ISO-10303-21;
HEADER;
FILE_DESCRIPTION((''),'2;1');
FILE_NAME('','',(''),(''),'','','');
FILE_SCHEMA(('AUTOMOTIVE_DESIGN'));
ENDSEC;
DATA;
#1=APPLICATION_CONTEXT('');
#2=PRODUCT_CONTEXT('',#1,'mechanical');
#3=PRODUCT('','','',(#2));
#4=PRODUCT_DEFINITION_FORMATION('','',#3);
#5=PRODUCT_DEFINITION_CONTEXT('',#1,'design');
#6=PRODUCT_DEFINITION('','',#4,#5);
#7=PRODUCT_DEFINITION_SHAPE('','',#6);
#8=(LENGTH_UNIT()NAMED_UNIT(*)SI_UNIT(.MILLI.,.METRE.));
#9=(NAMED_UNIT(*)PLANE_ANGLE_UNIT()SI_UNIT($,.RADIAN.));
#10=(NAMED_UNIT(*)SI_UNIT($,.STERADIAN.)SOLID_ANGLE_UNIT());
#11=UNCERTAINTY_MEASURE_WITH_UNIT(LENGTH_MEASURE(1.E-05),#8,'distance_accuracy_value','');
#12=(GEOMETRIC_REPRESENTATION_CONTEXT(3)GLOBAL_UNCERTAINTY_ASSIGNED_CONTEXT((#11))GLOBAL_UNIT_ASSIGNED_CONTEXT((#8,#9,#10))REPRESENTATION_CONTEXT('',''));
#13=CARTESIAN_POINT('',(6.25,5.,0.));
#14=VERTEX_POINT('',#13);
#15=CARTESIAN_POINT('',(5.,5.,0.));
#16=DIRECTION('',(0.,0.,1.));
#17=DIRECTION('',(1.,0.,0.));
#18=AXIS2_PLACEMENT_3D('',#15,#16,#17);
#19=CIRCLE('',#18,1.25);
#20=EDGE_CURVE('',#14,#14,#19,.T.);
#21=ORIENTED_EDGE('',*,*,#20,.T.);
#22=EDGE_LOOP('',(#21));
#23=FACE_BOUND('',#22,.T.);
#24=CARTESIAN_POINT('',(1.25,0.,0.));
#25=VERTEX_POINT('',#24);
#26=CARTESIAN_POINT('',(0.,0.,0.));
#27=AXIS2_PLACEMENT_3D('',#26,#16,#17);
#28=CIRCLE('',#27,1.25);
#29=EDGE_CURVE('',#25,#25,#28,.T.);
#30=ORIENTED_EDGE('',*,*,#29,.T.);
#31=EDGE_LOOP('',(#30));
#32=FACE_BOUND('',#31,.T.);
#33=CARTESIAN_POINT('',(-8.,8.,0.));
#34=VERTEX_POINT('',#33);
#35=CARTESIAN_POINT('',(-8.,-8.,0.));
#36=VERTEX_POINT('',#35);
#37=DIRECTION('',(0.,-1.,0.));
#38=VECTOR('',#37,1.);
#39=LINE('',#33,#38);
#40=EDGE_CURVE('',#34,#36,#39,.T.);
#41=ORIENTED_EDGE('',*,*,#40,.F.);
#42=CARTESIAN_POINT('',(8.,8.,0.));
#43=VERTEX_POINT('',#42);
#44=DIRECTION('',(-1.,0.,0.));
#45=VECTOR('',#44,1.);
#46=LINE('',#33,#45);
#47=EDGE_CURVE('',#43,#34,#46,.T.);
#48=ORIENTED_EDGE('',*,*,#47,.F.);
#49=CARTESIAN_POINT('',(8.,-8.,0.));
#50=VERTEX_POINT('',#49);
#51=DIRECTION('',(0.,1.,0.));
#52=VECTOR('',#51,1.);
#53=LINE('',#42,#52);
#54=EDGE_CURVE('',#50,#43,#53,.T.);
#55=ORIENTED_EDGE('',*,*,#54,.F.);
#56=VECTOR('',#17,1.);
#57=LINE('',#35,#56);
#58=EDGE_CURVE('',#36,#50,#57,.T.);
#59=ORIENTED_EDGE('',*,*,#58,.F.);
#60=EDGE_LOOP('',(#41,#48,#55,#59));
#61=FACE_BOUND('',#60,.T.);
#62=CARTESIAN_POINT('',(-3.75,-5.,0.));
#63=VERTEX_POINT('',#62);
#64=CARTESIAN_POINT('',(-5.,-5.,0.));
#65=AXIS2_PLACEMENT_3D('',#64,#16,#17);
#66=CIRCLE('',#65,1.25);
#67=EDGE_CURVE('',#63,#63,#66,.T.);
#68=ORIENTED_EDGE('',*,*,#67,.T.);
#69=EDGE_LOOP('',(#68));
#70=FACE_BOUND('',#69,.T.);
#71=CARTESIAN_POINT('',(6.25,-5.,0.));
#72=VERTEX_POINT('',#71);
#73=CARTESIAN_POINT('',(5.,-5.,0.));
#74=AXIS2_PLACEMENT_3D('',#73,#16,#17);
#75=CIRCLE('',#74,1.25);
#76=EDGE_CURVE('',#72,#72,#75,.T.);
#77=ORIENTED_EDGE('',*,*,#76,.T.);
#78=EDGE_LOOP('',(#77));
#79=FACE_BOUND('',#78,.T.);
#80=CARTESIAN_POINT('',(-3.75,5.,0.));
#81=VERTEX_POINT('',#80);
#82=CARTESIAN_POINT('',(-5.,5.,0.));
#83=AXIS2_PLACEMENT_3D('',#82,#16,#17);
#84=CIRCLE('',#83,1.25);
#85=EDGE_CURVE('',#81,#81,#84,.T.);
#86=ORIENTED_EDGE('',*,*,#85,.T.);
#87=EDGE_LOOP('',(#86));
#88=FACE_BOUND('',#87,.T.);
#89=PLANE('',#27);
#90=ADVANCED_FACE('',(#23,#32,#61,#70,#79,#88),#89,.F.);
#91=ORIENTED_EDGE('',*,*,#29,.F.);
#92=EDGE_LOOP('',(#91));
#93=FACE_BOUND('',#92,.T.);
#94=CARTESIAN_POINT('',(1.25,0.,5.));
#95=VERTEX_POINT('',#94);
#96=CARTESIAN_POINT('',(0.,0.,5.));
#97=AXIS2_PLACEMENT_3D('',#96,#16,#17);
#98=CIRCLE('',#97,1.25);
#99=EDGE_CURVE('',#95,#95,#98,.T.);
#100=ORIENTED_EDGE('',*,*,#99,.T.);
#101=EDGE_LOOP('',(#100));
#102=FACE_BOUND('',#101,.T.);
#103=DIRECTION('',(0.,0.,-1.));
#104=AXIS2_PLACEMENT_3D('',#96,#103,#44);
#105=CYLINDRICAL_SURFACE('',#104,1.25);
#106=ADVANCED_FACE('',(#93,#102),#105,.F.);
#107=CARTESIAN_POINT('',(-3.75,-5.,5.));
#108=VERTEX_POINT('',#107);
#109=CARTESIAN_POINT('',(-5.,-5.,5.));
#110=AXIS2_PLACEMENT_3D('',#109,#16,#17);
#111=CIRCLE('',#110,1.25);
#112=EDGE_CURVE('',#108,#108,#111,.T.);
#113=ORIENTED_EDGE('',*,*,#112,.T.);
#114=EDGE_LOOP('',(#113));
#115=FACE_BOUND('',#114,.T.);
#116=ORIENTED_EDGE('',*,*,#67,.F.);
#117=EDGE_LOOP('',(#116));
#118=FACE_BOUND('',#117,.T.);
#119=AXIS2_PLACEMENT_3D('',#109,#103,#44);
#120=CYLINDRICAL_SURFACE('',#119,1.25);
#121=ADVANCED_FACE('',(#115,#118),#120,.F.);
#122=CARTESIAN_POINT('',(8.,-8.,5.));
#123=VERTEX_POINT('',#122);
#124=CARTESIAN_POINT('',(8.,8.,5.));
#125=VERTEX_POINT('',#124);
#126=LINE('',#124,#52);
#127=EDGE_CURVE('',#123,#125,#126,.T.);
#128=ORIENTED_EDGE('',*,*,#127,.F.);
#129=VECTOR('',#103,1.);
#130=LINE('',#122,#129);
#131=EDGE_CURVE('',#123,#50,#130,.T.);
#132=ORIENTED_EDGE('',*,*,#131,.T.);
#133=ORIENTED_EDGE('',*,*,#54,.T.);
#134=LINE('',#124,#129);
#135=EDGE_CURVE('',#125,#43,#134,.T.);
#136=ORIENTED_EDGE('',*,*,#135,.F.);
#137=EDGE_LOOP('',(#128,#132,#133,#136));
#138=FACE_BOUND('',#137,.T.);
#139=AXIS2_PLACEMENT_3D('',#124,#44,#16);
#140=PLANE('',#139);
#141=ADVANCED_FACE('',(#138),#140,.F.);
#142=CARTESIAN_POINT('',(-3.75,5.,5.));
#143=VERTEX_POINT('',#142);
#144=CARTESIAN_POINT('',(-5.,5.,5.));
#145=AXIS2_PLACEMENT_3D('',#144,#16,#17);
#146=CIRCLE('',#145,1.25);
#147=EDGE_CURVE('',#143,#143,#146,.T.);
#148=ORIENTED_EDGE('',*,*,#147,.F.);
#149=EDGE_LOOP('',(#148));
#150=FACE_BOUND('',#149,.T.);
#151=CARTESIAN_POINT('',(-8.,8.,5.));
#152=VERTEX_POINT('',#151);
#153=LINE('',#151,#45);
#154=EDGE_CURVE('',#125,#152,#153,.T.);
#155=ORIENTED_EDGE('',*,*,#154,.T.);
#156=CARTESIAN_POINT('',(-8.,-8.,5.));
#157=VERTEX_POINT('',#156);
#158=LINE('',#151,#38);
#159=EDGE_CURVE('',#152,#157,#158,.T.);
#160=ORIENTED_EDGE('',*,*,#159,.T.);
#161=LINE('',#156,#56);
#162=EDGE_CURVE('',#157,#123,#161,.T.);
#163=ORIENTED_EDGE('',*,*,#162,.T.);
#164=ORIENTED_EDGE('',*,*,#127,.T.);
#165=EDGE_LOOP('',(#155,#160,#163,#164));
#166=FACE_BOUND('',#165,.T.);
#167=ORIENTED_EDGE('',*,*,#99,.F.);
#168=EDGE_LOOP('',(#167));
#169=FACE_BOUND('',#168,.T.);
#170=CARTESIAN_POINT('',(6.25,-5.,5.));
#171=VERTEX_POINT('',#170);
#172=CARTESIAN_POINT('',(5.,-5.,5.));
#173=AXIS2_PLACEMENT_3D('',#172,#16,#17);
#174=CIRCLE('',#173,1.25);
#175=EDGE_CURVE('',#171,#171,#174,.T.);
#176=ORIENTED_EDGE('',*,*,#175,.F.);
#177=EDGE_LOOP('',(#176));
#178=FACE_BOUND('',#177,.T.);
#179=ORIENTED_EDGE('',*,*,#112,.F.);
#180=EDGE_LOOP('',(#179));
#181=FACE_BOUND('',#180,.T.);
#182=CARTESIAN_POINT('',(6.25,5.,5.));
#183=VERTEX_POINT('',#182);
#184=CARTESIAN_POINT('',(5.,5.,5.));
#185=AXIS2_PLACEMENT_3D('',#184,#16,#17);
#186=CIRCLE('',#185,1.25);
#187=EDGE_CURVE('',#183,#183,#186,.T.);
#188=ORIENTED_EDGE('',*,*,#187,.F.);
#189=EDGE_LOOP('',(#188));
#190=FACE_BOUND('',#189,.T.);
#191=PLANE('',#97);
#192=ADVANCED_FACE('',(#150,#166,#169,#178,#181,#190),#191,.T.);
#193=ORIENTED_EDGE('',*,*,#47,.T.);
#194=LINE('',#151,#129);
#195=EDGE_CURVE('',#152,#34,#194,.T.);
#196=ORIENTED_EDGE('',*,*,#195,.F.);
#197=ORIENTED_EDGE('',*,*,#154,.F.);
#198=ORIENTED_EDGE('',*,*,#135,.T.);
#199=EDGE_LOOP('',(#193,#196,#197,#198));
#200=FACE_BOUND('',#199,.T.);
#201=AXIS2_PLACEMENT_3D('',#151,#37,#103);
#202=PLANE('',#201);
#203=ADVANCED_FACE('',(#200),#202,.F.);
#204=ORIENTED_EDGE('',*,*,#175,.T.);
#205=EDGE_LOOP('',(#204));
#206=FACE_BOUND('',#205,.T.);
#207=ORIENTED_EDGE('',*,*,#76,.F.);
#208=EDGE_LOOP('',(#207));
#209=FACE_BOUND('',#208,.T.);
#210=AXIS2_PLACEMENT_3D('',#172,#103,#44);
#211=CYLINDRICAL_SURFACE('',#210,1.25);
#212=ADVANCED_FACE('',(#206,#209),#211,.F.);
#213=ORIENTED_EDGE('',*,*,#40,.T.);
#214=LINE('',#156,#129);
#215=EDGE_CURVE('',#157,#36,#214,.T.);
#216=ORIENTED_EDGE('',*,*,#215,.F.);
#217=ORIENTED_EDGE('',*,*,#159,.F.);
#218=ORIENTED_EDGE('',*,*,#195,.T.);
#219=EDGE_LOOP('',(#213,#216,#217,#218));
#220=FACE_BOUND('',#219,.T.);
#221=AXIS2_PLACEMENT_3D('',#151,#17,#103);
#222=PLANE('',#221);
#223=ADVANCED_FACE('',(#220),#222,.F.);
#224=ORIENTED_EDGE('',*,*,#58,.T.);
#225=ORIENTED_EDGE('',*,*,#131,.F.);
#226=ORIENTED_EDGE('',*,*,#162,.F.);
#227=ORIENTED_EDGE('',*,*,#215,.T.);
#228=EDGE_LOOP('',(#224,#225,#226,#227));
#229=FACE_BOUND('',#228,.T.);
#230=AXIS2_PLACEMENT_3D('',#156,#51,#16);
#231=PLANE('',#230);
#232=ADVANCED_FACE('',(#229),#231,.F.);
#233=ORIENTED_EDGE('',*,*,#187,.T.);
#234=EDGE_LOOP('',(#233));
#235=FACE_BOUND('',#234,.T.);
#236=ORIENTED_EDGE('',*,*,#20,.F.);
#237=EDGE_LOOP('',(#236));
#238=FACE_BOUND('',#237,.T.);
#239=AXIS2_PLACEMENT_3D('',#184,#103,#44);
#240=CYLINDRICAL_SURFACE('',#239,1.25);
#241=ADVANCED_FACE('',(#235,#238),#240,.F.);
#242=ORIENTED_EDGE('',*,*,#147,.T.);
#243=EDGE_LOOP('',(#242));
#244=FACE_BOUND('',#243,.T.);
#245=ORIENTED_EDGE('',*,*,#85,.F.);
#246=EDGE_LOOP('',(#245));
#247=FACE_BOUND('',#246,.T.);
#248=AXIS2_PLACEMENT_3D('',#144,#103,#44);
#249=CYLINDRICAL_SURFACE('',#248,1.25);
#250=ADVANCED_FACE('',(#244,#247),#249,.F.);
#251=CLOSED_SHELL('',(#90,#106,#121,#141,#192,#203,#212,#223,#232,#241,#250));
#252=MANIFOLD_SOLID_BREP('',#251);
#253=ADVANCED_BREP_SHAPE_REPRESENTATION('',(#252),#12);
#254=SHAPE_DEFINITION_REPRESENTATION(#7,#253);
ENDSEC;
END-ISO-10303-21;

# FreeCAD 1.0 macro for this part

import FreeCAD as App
import Part
import Sketcher
Q = App.Units.Quantity

doc = App.newDocument("Part")
body = doc.addObject("PartDesign::Body", "Body")

# Sketch on XY plane
sketch1 = body.newObject("Sketcher::SketchObject", "Sketch")
sketch1.AttachmentSupport = (doc.getObject("XY_Plane"), [""])
sketch1.MapMode = "FlatFace"
sketch1.addGeometry([
    Part.LineSegment(App.Vector(-8, 8, 0), App.Vector(-8, -8, 0)),  # 0
    Part.LineSegment(App.Vector(-8, -8, 0), App.Vector(8, -8, 0)),  # 1
    Part.LineSegment(App.Vector(8, -8, 0), App.Vector(8, 8, 0)),  # 2
    Part.LineSegment(App.Vector(8, 8, 0), App.Vector(-8, 8, 0)),  # 3
    Part.Circle(App.Vector(-5, -5, 0), App.Vector(0, 0, 1), 1.2),  # 4
    Part.Circle(App.Vector(5, -5, 0), App.Vector(0, 0, 1), 1.2),  # 5
    Part.Circle(App.Vector(-5, 5, 0), App.Vector(0, 0, 1), 1.2),  # 6
    Part.Circle(App.Vector(0, 0, 0), App.Vector(0, 0, 1), 1.2),  # 7
    Part.Circle(App.Vector(5, 5, 0), App.Vector(0, 0, 1), 1.2),  # 8
], False)
sketch1.addConstraint([
    Sketcher.Constraint("Coincident", 0, 2, 1, 1),
    Sketcher.Constraint("Coincident", 1, 2, 2, 1),
    Sketcher.Constraint("Coincident", 2, 2, 3, 1),
    Sketcher.Constraint("Coincident", 3, 2, 0, 1),
    Sketcher.Constraint("Vertical", 0),
    Sketcher.Constraint("Horizontal", 1),
    Sketcher.Constraint("Vertical", 2),
    Sketcher.Constraint("Horizontal", 3),
    Sketcher.Constraint("Coincident", 7, 3, -1, 1),
    Sketcher.Constraint("Equal", 4, 5),
    Sketcher.Constraint("Equal", 5, 6),
    Sketcher.Constraint("Equal", 6, 7),
    Sketcher.Constraint("Equal", 7, 8),
    Sketcher.Constraint("Symmetric", 5, 3, 6, 3, -1, 1),
    Sketcher.Constraint("Symmetric", 4, 3, 8, 3, -1, 1),
    Sketcher.Constraint("Symmetric", 0, 2, 2, 2, -1, 1),
    Sketcher.Constraint("Symmetric", 4, 3, 5, 3, -2),
    Sketcher.Constraint("Equal", 3, 0),
    Sketcher.Constraint("Diameter", 4, Q("2.5 mm")),
    Sketcher.Constraint("DistanceX", 1, 1, 1, 2, Q("16 mm")),
    Sketcher.Constraint("DistanceX", 4, 3, -1, 1, Q("5 mm")),
    Sketcher.Constraint("DistanceY", 4, 3, -1, 1, Q("5 mm")),
])
pad1 = body.newObject("PartDesign::Pad", "Pad")
pad1.Profile = sketch1
pad1.Length = 5

doc.recompute()
